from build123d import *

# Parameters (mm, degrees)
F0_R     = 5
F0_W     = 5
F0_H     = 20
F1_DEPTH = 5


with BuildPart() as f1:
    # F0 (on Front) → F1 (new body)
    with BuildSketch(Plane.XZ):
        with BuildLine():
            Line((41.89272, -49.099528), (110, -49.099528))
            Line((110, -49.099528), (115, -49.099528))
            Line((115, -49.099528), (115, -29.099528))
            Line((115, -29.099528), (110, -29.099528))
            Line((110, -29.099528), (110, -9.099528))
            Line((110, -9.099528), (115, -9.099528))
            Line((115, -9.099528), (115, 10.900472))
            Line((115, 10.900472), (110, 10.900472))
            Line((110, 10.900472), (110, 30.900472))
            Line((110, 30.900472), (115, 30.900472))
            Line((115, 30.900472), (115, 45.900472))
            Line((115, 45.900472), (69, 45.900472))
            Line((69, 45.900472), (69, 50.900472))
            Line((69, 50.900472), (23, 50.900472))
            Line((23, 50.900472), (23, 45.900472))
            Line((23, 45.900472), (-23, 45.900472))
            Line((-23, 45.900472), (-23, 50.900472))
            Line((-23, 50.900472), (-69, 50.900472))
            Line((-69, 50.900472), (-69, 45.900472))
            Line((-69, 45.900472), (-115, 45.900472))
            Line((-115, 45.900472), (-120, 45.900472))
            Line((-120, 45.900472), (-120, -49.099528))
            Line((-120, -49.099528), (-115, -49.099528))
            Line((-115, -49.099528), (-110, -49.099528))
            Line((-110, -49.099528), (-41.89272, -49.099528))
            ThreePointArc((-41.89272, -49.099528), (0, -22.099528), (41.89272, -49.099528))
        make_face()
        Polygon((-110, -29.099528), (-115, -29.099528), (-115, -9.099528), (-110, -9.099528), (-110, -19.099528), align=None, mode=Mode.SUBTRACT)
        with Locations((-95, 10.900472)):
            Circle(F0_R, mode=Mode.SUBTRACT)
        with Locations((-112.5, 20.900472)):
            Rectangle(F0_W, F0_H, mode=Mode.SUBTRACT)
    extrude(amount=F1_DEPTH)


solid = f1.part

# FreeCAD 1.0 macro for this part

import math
import FreeCAD as App
import Part
import Sketcher
Q = App.Units.Quantity


def add_polygon(sketch, points):
    """Adds a closed chain of lines whose ends are joined by coincident constraints."""
    first, n = sketch.GeometryCount, len(points)
    for a, b in zip(points, points[1:] + points[:1]):
        sketch.addGeometry(Part.LineSegment(App.Vector(*a, 0), App.Vector(*b, 0)), False)
    for i in range(n):
        sketch.addConstraint(Sketcher.Constraint("Coincident", first + i, 2, first + (i + 1) % n, 1))

doc = App.newDocument("Part")
body = doc.addObject("PartDesign::Body", "Body")

# Sketch on XZ plane
sketch1 = doc.addObject("Sketcher::SketchObject", "Sketch")
body.addObject(sketch1)
sketch1.AttachmentSupport = (doc.XZ_Plane, [""])
sketch1.MapMode = "FlatFace"
sketch1.addGeometry(Part.LineSegment(App.Vector(41.89272, -49.099528, 0), App.Vector(115, -49.099528, 0)), False)  # 0
sketch1.addGeometry(Part.LineSegment(App.Vector(115, -49.099528, 0), App.Vector(115, -29.099528, 0)), False)  # 1
sketch1.addGeometry(Part.LineSegment(App.Vector(115, -29.099528, 0), App.Vector(110, -29.099528, 0)), False)  # 2
sketch1.addGeometry(Part.LineSegment(App.Vector(110, -29.099528, 0), App.Vector(110, -9.099528, 0)), False)  # 3
sketch1.addGeometry(Part.LineSegment(App.Vector(110, -9.099528, 0), App.Vector(115, -9.099528, 0)), False)  # 4
sketch1.addGeometry(Part.LineSegment(App.Vector(115, -9.099528, 0), App.Vector(115, 10.900472, 0)), False)  # 5
sketch1.addGeometry(Part.LineSegment(App.Vector(115, 10.900472, 0), App.Vector(110, 10.900472, 0)), False)  # 6
sketch1.addGeometry(Part.LineSegment(App.Vector(110, 10.900472, 0), App.Vector(110, 30.900472, 0)), False)  # 7
sketch1.addGeometry(Part.LineSegment(App.Vector(110, 30.900472, 0), App.Vector(115, 30.900472, 0)), False)  # 8
sketch1.addGeometry(Part.LineSegment(App.Vector(115, 30.900472, 0), App.Vector(115, 45.900472, 0)), False)  # 9
sketch1.addGeometry(Part.LineSegment(App.Vector(115, 45.900472, 0), App.Vector(69, 45.900472, 0)), False)  # 10
sketch1.addGeometry(Part.LineSegment(App.Vector(69, 45.900472, 0), App.Vector(69, 50.900472, 0)), False)  # 11
sketch1.addGeometry(Part.LineSegment(App.Vector(69, 50.900472, 0), App.Vector(23, 50.900472, 0)), False)  # 12
sketch1.addGeometry(Part.LineSegment(App.Vector(23, 50.900472, 0), App.Vector(23, 45.900472, 0)), False)  # 13
sketch1.addGeometry(Part.LineSegment(App.Vector(23, 45.900472, 0), App.Vector(-23, 45.900472, 0)), False)  # 14
sketch1.addGeometry(Part.LineSegment(App.Vector(-23, 45.900472, 0), App.Vector(-23, 50.900472, 0)), False)  # 15
sketch1.addGeometry(Part.LineSegment(App.Vector(-23, 50.900472, 0), App.Vector(-69, 50.900472, 0)), False)  # 16
sketch1.addGeometry(Part.LineSegment(App.Vector(-69, 50.900472, 0), App.Vector(-69, 45.900472, 0)), False)  # 17
sketch1.addGeometry(Part.LineSegment(App.Vector(-69, 45.900472, 0), App.Vector(-120, 45.900472, 0)), False)  # 18
sketch1.addGeometry(Part.LineSegment(App.Vector(-120, 45.900472, 0), App.Vector(-120, -49.099528, 0)), False)  # 19
sketch1.addGeometry(Part.LineSegment(App.Vector(-120, -49.099528, 0), App.Vector(-41.89272, -49.099528, 0)), False)  # 20
sketch1.addGeometry(Part.ArcOfCircle(Part.Circle(App.Vector(0, -68.099528, 0), App.Vector(0, 0, 1), 46), math.radians(24.396165), math.radians(155.603835)), False)  # 21
add_polygon(sketch1, [(-110, -9.099528), (-110, -29.099528), (-115, -29.099528), (-115, -9.099528)])  # lines 22-25
add_polygon(sketch1, [(-110, 10.900472), (-115, 10.900472), (-115, 30.900472), (-110, 30.900472)])  # lines 26-29
sketch1.addGeometry(Part.Circle(App.Vector(-95, 10.900472, 0), App.Vector(0, 0, 1), 5), False)  # 30
sketch1.addConstraint(Sketcher.Constraint("Coincident", 0, 2, 1, 1))
sketch1.addConstraint(Sketcher.Constraint("Coincident", 1, 2, 2, 1))
sketch1.addConstraint(Sketcher.Constraint("Coincident", 2, 2, 3, 1))
sketch1.addConstraint(Sketcher.Constraint("Coincident", 3, 2, 4, 1))
sketch1.addConstraint(Sketcher.Constraint("Coincident", 4, 2, 5, 1))
sketch1.addConstraint(Sketcher.Constraint("Coincident", 5, 2, 6, 1))
sketch1.addConstraint(Sketcher.Constraint("Coincident", 6, 2, 7, 1))
sketch1.addConstraint(Sketcher.Constraint("Coincident", 7, 2, 8, 1))
sketch1.addConstraint(Sketcher.Constraint("Coincident", 8, 2, 9, 1))
sketch1.addConstraint(Sketcher.Constraint("Coincident", 9, 2, 10, 1))
sketch1.addConstraint(Sketcher.Constraint("Coincident", 10, 2, 11, 1))
sketch1.addConstraint(Sketcher.Constraint("Coincident", 11, 2, 12, 1))
sketch1.addConstraint(Sketcher.Constraint("Coincident", 12, 2, 13, 1))
sketch1.addConstraint(Sketcher.Constraint("Coincident", 13, 2, 14, 1))
sketch1.addConstraint(Sketcher.Constraint("Coincident", 14, 2, 15, 1))
sketch1.addConstraint(Sketcher.Constraint("Coincident", 15, 2, 16, 1))
sketch1.addConstraint(Sketcher.Constraint("Coincident", 16, 2, 17, 1))
sketch1.addConstraint(Sketcher.Constraint("Coincident", 17, 2, 18, 1))
sketch1.addConstraint(Sketcher.Constraint("Coincident", 18, 2, 19, 1))
sketch1.addConstraint(Sketcher.Constraint("Coincident", 19, 2, 20, 1))
sketch1.addConstraint(Sketcher.Constraint("Coincident", 20, 2, 21, 2))
sketch1.addConstraint(Sketcher.Constraint("Coincident", 21, 1, 0, 1))
sketch1.addConstraint(Sketcher.Constraint("Horizontal", 0))
sketch1.addConstraint(Sketcher.Constraint("Vertical", 1))
sketch1.addConstraint(Sketcher.Constraint("Horizontal", 2))
sketch1.addConstraint(Sketcher.Constraint("Vertical", 3))
sketch1.addConstraint(Sketcher.Constraint("Horizontal", 4))
sketch1.addConstraint(Sketcher.Constraint("Vertical", 5))
sketch1.addConstraint(Sketcher.Constraint("Horizontal", 6))
sketch1.addConstraint(Sketcher.Constraint("Vertical", 7))
sketch1.addConstraint(Sketcher.Constraint("Horizontal", 8))
sketch1.addConstraint(Sketcher.Constraint("Vertical", 9))
sketch1.addConstraint(Sketcher.Constraint("Horizontal", 10))
sketch1.addConstraint(Sketcher.Constraint("Vertical", 11))
sketch1.addConstraint(Sketcher.Constraint("Horizontal", 12))
sketch1.addConstraint(Sketcher.Constraint("Vertical", 13))
sketch1.addConstraint(Sketcher.Constraint("Horizontal", 14))
sketch1.addConstraint(Sketcher.Constraint("Vertical", 15))
sketch1.addConstraint(Sketcher.Constraint("Horizontal", 16))
sketch1.addConstraint(Sketcher.Constraint("Vertical", 17))
sketch1.addConstraint(Sketcher.Constraint("Horizontal", 18))
sketch1.addConstraint(Sketcher.Constraint("Vertical", 19))
sketch1.addConstraint(Sketcher.Constraint("Horizontal", 20))
sketch1.addConstraint(Sketcher.Constraint("Vertical", 22))
sketch1.addConstraint(Sketcher.Constraint("Horizontal", 23))
sketch1.addConstraint(Sketcher.Constraint("Vertical", 24))
sketch1.addConstraint(Sketcher.Constraint("Horizontal", 25))
sketch1.addConstraint(Sketcher.Constraint("Horizontal", 26))
sketch1.addConstraint(Sketcher.Constraint("Vertical", 27))
sketch1.addConstraint(Sketcher.Constraint("Horizontal", 28))
sketch1.addConstraint(Sketcher.Constraint("Vertical", 29))
sketch1.addConstraint(Sketcher.Constraint("Symmetric", 12, 2, 15, 2, -2))
sketch1.addConstraint(Sketcher.Constraint("Symmetric", 10, 2, 17, 2, -2))
sketch1.addConstraint(Sketcher.Constraint("Symmetric", 20, 2, 21, 1, -2))
sketch1.addConstraint(Sketcher.Constraint("Symmetric", 2, 2, 22, 2, -2))
sketch1.addConstraint(Sketcher.Constraint("Symmetric", 4, 2, 24, 2, -2))
sketch1.addConstraint(Sketcher.Constraint("Symmetric", 5, 2, 26, 2, -2))
sketch1.addConstraint(Sketcher.Constraint("Symmetric", 8, 2, 27, 2, -2))
sketch1.addConstraint(Sketcher.Constraint("Horizontal", 30, 3, 5, 2))
sketch1.addConstraint(Sketcher.Constraint("Horizontal", 10, 2, 13, 2))
sketch1.addConstraint(Sketcher.Constraint("Vertical", 1, 2, 4, 2))
sketch1.addConstraint(Sketcher.Constraint("Vertical", 3, 2, 6, 2))
sketch1.addConstraint(Sketcher.Constraint("Vertical", 25, 2, 28, 2))
sketch1.addConstraint(Sketcher.Constraint("Equal", 10, 12))
sketch1.addConstraint(Sketcher.Constraint("Equal", 12, 14))
sketch1.addConstraint(Sketcher.Constraint("Equal", 1, 3))
sketch1.addConstraint(Sketcher.Constraint("Equal", 3, 5))
sketch1.addConstraint(Sketcher.Constraint("Equal", 5, 7))
sketch1.addConstraint(Sketcher.Constraint("Equal", 28, 11))
sketch1.addConstraint(Sketcher.Constraint("Diameter", 30, Q("10 mm")))
sketch1.addConstraint(Sketcher.Constraint("Radius", 21, Q("46 mm")))
sketch1.addConstraint(Sketcher.Constraint("DistanceX", 2, 2, 2, 1, Q("5 mm")))
sketch1.addConstraint(Sketcher.Constraint("DistanceX", 10, 2, 10, 1, Q("46 mm")))
sketch1.addConstraint(Sketcher.Constraint("DistanceX", 18, 2, 18, 1, Q("51 mm")))
sketch1.addConstraint(Sketcher.Constraint("DistanceY", 1, 1, 1, 2, Q("20 mm")))
sketch1.addConstraint(Sketcher.Constraint("DistanceY", 9, 1, 9, 2, Q("15 mm")))
sketch1.addConstraint(Sketcher.Constraint("DistanceX", 30, 3, -1, 1, Q("95 mm")))
sketch1.addConstraint(Sketcher.Constraint("DistanceY", 21, 3, 30, 3, Q("79 mm")))
sketch1.addConstraint(Sketcher.Constraint("DistanceY", 21, 1, -1, 1, Q("49.099528 mm")))
pad1 = doc.addObject("PartDesign::Pad", "Pad")
body.addObject(pad1)
pad1.Profile = sketch1
pad1.Length = 5

doc.recompute()
